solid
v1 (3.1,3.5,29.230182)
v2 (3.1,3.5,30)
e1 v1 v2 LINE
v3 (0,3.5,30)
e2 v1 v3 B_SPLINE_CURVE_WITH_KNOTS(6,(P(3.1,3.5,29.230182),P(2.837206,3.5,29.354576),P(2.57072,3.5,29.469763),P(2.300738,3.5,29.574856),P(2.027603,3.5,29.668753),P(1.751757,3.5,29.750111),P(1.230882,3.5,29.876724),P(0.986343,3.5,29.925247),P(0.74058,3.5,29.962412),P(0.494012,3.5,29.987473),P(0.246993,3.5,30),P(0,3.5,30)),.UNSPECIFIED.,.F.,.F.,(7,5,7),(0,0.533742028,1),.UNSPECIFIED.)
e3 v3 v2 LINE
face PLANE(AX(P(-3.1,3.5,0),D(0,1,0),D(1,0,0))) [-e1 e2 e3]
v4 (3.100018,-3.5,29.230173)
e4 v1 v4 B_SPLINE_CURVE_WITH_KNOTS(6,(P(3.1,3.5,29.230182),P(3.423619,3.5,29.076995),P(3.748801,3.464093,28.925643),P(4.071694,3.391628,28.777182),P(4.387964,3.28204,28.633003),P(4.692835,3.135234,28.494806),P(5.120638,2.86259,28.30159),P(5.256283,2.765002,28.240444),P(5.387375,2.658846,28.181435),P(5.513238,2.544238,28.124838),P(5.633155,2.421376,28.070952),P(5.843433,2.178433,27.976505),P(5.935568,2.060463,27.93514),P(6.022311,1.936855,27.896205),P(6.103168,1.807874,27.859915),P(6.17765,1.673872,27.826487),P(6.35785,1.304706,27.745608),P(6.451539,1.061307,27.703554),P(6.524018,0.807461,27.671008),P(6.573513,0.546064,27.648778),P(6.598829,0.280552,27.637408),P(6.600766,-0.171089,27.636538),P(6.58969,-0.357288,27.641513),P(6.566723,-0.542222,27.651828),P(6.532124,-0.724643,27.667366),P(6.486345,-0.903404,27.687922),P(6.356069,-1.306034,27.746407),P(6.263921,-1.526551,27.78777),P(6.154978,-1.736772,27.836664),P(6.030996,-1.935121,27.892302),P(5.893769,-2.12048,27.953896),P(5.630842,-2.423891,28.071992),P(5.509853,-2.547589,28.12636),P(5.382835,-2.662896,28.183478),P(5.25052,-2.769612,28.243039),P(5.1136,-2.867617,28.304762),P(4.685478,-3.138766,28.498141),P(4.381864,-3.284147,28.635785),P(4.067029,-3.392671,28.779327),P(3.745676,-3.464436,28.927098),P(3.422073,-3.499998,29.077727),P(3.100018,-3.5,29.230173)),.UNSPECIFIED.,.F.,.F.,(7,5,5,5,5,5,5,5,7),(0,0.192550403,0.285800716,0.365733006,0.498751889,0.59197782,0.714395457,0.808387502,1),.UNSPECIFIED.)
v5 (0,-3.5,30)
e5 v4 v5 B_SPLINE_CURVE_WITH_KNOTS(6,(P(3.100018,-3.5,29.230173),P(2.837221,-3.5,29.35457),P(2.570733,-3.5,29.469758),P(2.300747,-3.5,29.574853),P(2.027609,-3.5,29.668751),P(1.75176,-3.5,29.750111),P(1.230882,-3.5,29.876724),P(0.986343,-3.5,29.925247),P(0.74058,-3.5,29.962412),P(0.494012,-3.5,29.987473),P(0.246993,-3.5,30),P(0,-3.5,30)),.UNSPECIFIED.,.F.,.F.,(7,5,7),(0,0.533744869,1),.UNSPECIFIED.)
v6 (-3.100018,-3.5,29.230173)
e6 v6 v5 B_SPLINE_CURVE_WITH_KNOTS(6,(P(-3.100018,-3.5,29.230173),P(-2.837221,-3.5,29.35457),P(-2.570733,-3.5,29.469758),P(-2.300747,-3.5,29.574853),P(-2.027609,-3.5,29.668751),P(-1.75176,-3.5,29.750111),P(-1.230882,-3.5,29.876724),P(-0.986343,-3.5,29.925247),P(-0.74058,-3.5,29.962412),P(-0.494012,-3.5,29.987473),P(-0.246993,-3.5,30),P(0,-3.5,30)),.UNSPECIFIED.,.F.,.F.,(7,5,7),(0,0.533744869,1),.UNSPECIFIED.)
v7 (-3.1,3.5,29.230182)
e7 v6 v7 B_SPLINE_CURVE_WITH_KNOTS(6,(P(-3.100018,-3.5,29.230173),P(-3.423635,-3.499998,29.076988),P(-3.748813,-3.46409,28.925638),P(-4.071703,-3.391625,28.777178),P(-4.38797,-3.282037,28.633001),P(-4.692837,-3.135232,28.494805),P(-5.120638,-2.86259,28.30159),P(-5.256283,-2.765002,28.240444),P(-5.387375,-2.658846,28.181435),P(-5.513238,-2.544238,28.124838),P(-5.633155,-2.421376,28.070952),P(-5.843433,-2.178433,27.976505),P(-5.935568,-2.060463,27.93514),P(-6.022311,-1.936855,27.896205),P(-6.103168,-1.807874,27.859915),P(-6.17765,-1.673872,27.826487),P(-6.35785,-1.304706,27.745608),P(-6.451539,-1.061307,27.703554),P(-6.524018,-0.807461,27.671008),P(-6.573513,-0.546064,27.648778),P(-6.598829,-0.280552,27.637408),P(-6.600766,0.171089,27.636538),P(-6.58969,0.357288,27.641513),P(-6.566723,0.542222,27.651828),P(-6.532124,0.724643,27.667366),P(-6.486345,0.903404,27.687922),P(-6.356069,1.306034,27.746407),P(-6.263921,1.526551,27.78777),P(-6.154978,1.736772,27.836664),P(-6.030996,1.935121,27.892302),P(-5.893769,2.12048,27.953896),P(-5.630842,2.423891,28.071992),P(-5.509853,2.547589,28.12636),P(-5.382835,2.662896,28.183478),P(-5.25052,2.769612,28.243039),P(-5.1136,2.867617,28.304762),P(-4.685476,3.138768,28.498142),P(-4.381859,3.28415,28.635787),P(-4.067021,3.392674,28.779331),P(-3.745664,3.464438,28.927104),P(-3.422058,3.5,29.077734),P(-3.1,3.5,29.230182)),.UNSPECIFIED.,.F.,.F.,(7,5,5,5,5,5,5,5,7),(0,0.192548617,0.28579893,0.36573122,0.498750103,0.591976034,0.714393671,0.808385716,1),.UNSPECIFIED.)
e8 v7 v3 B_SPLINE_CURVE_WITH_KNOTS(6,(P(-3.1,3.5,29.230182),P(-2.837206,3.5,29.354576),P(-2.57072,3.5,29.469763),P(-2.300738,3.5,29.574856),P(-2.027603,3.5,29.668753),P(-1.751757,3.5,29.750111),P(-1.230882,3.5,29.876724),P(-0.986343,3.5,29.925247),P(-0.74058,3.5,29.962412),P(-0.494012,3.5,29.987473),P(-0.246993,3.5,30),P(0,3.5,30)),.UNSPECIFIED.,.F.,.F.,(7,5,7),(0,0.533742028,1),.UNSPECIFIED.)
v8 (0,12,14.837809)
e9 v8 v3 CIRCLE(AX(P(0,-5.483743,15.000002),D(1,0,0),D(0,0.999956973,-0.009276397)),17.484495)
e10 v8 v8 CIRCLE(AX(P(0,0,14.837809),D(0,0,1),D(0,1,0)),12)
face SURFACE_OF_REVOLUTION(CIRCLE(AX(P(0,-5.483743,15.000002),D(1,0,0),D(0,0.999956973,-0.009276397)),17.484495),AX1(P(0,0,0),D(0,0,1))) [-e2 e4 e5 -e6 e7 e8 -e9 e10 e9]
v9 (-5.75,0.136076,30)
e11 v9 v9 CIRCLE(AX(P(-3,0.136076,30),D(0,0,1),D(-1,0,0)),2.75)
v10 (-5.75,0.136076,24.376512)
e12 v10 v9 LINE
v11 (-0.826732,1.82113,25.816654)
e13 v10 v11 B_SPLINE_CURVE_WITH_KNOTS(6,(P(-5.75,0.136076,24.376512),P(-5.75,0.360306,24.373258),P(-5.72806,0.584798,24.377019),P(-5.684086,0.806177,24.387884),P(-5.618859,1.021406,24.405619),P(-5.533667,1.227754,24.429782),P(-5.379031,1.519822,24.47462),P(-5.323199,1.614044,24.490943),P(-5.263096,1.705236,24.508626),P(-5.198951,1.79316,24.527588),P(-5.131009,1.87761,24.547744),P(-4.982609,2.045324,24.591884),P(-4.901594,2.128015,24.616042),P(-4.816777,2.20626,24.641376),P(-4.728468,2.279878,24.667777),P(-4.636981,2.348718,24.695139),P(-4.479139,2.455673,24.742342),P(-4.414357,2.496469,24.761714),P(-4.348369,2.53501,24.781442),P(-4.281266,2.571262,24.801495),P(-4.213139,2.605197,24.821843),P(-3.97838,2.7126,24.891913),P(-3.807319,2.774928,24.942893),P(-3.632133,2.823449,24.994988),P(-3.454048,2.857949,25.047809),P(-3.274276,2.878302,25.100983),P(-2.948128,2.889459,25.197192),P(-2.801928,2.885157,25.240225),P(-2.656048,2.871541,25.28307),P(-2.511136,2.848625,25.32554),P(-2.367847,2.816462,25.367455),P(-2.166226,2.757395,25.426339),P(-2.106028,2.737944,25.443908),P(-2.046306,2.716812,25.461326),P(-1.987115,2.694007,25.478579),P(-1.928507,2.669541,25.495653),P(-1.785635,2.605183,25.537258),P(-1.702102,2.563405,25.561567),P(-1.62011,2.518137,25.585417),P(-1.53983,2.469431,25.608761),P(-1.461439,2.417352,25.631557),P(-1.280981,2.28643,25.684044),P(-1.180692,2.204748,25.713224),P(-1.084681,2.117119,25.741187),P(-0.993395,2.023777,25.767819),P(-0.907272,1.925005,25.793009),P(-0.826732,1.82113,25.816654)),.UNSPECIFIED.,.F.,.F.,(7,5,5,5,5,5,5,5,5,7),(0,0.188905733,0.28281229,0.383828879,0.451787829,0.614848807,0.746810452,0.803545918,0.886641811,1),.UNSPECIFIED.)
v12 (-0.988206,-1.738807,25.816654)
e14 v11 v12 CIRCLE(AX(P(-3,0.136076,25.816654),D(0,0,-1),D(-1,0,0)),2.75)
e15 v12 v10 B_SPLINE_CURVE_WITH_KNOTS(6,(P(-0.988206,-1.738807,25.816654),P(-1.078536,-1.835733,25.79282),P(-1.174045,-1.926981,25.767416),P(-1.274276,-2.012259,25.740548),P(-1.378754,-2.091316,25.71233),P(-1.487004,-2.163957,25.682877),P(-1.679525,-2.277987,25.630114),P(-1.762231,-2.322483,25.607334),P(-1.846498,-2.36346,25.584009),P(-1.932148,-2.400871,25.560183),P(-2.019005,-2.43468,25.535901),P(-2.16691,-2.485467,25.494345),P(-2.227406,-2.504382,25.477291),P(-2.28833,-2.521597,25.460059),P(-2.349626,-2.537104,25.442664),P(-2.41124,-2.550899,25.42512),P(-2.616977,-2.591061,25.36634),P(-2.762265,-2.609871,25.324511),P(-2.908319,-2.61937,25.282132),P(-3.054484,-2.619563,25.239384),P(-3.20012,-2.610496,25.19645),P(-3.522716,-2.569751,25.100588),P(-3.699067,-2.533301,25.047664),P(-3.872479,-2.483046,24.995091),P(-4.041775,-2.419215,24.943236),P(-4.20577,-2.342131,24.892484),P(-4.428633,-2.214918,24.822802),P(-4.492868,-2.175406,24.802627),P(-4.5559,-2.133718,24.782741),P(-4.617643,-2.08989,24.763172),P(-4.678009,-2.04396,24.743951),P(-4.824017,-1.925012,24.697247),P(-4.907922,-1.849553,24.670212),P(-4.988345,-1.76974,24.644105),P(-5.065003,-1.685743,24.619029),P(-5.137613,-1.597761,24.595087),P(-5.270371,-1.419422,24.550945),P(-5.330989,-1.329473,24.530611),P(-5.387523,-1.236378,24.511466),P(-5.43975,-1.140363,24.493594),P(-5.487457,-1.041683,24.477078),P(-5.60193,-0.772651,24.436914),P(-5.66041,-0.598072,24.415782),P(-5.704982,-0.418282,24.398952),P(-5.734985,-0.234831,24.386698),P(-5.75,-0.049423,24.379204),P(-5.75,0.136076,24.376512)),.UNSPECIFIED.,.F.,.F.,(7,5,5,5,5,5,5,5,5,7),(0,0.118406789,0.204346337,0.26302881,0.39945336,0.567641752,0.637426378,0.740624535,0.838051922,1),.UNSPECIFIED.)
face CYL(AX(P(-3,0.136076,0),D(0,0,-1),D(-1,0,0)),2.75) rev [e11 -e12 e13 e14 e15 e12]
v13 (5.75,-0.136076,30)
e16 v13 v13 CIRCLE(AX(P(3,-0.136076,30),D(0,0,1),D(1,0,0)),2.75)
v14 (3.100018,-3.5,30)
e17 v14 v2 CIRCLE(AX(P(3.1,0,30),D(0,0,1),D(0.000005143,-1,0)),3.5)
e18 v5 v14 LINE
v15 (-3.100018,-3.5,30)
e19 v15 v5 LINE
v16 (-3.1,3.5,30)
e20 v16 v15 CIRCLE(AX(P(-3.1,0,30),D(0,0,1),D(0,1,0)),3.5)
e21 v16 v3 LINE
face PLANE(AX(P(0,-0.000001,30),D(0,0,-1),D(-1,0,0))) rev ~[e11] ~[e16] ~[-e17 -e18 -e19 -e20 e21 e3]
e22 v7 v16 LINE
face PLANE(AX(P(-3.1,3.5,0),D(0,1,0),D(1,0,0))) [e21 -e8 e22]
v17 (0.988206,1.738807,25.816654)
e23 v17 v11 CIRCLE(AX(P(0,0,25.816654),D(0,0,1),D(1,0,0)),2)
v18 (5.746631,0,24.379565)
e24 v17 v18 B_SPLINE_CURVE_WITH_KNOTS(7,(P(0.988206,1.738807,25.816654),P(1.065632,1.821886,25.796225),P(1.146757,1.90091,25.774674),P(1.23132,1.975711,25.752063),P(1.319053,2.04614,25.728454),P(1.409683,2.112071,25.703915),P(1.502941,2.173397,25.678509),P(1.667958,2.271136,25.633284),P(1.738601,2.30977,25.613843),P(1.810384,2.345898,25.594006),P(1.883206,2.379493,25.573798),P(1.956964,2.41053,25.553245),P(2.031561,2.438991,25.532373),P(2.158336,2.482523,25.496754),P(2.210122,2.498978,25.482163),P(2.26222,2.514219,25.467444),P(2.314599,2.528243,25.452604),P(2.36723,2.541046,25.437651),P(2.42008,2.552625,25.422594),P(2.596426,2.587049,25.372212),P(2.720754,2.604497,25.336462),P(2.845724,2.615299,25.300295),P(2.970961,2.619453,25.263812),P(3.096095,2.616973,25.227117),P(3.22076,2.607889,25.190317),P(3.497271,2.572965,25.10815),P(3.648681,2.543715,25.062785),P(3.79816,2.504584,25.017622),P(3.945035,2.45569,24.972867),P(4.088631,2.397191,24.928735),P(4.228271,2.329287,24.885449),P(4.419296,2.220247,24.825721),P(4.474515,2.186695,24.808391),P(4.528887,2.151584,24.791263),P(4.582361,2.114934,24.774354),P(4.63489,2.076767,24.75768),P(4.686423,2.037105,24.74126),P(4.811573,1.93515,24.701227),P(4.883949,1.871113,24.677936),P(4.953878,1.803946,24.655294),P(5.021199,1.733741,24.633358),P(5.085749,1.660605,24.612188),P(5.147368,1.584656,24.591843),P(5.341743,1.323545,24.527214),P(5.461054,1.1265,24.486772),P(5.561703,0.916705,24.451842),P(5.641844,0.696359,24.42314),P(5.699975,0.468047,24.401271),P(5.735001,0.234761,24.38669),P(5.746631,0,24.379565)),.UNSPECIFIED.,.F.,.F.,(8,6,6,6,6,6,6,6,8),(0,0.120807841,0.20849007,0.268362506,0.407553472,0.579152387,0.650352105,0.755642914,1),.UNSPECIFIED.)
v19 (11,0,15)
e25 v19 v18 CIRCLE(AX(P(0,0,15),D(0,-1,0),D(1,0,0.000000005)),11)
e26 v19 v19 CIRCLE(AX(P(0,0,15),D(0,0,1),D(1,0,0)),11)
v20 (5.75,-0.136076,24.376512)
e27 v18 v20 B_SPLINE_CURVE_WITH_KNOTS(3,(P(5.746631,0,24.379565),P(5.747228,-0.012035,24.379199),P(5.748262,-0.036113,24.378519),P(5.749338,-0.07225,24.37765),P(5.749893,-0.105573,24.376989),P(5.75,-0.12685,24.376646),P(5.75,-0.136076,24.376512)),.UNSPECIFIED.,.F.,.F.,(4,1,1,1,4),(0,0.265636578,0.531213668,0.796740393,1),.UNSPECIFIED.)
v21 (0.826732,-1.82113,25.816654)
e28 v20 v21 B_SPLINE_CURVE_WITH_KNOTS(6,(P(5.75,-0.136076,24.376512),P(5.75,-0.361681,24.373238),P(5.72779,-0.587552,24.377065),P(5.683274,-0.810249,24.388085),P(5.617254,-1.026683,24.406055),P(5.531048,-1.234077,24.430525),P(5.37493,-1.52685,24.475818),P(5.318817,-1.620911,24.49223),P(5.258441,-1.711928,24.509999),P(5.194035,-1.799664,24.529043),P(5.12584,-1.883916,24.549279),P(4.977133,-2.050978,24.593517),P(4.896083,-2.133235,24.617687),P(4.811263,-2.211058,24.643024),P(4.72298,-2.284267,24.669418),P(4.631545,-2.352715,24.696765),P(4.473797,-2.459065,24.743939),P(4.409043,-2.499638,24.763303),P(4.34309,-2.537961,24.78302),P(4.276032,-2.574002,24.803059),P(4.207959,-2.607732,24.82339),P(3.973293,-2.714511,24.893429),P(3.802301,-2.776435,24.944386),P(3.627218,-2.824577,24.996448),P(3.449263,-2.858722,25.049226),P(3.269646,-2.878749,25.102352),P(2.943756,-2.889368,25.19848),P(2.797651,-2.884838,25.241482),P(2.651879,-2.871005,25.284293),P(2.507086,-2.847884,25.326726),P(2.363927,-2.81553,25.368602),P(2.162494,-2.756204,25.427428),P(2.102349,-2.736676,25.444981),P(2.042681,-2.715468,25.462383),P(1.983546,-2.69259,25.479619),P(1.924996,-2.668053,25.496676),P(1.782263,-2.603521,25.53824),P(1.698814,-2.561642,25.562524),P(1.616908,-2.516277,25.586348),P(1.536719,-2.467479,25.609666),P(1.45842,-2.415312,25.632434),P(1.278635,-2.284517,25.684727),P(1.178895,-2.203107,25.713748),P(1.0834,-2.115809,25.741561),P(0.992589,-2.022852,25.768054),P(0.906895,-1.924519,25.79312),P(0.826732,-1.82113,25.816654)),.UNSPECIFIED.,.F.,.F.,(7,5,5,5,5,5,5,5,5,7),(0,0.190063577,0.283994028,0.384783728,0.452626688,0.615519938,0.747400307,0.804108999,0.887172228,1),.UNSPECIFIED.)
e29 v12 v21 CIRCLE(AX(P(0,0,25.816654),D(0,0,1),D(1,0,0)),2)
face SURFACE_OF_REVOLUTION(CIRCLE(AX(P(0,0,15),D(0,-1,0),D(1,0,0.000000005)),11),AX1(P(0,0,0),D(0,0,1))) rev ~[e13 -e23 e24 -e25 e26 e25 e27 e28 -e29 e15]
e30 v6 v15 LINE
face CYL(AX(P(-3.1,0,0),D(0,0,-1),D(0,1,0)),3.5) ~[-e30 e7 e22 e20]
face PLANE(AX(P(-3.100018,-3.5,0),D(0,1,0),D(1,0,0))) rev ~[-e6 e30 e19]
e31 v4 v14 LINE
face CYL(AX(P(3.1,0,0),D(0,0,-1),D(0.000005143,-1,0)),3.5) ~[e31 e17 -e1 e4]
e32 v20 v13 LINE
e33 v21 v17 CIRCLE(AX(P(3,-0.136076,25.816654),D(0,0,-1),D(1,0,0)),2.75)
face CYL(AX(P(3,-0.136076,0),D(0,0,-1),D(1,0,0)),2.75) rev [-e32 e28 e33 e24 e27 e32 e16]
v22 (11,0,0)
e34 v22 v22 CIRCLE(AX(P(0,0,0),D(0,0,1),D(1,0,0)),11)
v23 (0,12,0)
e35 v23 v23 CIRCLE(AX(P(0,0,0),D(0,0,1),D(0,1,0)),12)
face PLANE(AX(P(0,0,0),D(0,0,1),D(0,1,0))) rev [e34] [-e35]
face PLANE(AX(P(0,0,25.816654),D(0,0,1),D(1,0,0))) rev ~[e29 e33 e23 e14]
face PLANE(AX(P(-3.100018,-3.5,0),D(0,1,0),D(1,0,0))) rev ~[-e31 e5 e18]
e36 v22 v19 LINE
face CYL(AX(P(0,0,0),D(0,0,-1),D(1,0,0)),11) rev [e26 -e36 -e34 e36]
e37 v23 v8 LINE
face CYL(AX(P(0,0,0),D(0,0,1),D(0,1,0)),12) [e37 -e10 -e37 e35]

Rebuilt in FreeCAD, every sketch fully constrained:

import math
import FreeCAD as App
import Part
import Sketcher
Q = App.Units.Quantity

doc = App.newDocument("Part")
body = doc.addObject("PartDesign::Body", "Body")

sketch1 = body.newObject("Sketcher::SketchObject", "Sketch")
sketch1.AttachmentSupport = (doc.getObject("XY_Plane"), [""])
sketch1.MapMode = "FlatFace"
sketch1.addGeometry(Part.Circle(App.Vector(3, -0.1, 0), App.Vector(0, 0, 1), 2.8), False)
sketch1.addConstraint(Sketcher.Constraint("Diameter", 0, Q("5.5 mm")))
sketch1.addConstraint(Sketcher.Constraint("DistanceX", -1, 1, 0, 3, Q("3 mm")))
sketch1.addConstraint(Sketcher.Constraint("DistanceY", 0, 3, -1, 1, Q("0.136076 mm")))
pad1 = body.newObject("PartDesign::Pad", "Pad")
pad1.Profile = sketch1
pad1.Length = 30
body2 = doc.addObject("PartDesign::Body", "Body001")
body2.AllowCompound = True
doc.recompute()

body2.BaseFeature = body
doc.recompute()

body.Placement = App.Placement(App.Vector(0, 0, 0), App.Rotation(App.Vector(0, 0, 1), 180))
boolean = body2.newObject("PartDesign::Boolean", "Boolean")
boolean.Type = "Fuse"
boolean.addObjects([body])
body3 = doc.addObject("PartDesign::Body", "Body002")

sketch2 = body3.newObject("Sketcher::SketchObject", "Sketch001")
sketch2.AttachmentSupport = (doc.getObject("XZ_Plane002"), [""])
sketch2.MapMode = "FlatFace"
sketch2.addGeometry(Part.LineSegment(App.Vector(0, 15, 0), App.Vector(11, 15, 0)), False)
sketch2.addGeometry(Part.ArcOfCircle(Part.Circle(App.Vector(0, 15, 0), App.Vector(0, 0, 1), 11), math.radians(0), math.radians(80)), False)
sketch2.addGeometry(Part.LineSegment(App.Vector(2, 25.8, 0), App.Vector(0, 25.8, 0)), False)
sketch2.addGeometry(Part.LineSegment(App.Vector(0, 25.8, 0), App.Vector(0, 15, 0)), False)
sketch2.addConstraint(Sketcher.Constraint("Coincident", 0, 2, 1, 1))
sketch2.addConstraint(Sketcher.Constraint("Coincident", 1, 2, 2, 1))
sketch2.addConstraint(Sketcher.Constraint("Coincident", 2, 2, 3, 1))
sketch2.addConstraint(Sketcher.Constraint("Coincident", 3, 2, 0, 1))
sketch2.addConstraint(Sketcher.Constraint("Horizontal", 0))
sketch2.addConstraint(Sketcher.Constraint("Horizontal", 2))
sketch2.addConstraint(Sketcher.Constraint("Vertical", 3))
sketch2.addConstraint(Sketcher.Constraint("Coincident", 3, 2, 1, 3))
sketch2.addConstraint(Sketcher.Constraint("PointOnObject", 1, 3, -2))
sketch2.addConstraint(Sketcher.Constraint("Radius", 1, Q("11 mm")))
sketch2.addConstraint(Sketcher.Constraint("DistanceX", 2, 2, 2, 1, Q("2 mm")))
sketch2.addConstraint(Sketcher.Constraint("DistanceY", -1, 1, 1, 3, Q("15 mm")))
revolution = body3.newObject("PartDesign::Revolution", "Revolution")
revolution.Profile = sketch2
revolution.ReferenceAxis = (sketch2, ["V_Axis"])
revolution.Angle = 360
body4 = doc.addObject("PartDesign::Body", "Body003")

sketch3 = body4.newObject("Sketcher::SketchObject", "Sketch002")
sketch3.AttachmentSupport = (doc.getObject("XY_Plane003"), [""])
sketch3.MapMode = "FlatFace"
sketch3.addGeometry(Part.Circle(App.Vector(0, 0, 0), App.Vector(0, 0, 1), 11), False)
sketch3.addConstraint(Sketcher.Constraint("Coincident", 0, 3, -1, 1))
sketch3.addConstraint(Sketcher.Constraint("Diameter", 0, Q("22 mm")))
pad2 = body4.newObject("PartDesign::Pad", "Pad001")
pad2.Profile = sketch3
pad2.Length = 15
doc.recompute()

boolean2 = body4.newObject("PartDesign::Boolean", "Boolean001")
boolean2.Type = "Fuse"
boolean2.addObjects([body3])
body5 = doc.addObject("PartDesign::Body", "Body004")

sketch4 = body5.newObject("Sketcher::SketchObject", "Sketch003")
sketch4.AttachmentSupport = (doc.getObject("YZ_Plane004"), [""])
sketch4.MapMode = "FlatFace"
sketch4.addGeometry(Part.LineSegment(App.Vector(0, 0, 0), App.Vector(12, 0, 0)), False)
sketch4.addGeometry(Part.LineSegment(App.Vector(12, 0, 0), App.Vector(12, 14.8, 0)), False)
sketch4.addGeometry(Part.ArcOfCircle(Part.Circle(App.Vector(-5.5, 15, 0), App.Vector(0, 0, 1), 17.5), math.radians(-1), math.radians(59)), False)
sketch4.addGeometry(Part.LineSegment(App.Vector(3.5, 30, 0), App.Vector(0, 30, 0)), False)
sketch4.addGeometry(Part.LineSegment(App.Vector(0, 30, 0), App.Vector(0, 0, 0)), False)
sketch4.addConstraint(Sketcher.Constraint("Coincident", 0, 2, 1, 1))
sketch4.addConstraint(Sketcher.Constraint("Coincident", 1, 2, 2, 1))
sketch4.addConstraint(Sketcher.Constraint("Coincident", 2, 2, 3, 1))
sketch4.addConstraint(Sketcher.Constraint("Coincident", 3, 2, 4, 1))
sketch4.addConstraint(Sketcher.Constraint("Coincident", 4, 2, 0, 1))
sketch4.addConstraint(Sketcher.Constraint("Horizontal", 0))
sketch4.addConstraint(Sketcher.Constraint("Vertical", 1))
sketch4.addConstraint(Sketcher.Constraint("Horizontal", 3))
sketch4.addConstraint(Sketcher.Constraint("Vertical", 4))
sketch4.addConstraint(Sketcher.Constraint("Coincident", 4, 2, -1, 1))
sketch4.addConstraint(Sketcher.Constraint("DistanceX", 0, 1, 0, 2, Q("12 mm")))
sketch4.addConstraint(Sketcher.Constraint("DistanceY", 4, 2, 4, 1, Q("30 mm")))
sketch4.addConstraint(Sketcher.Constraint("DistanceX", 3, 2, 3, 1, Q("3.5 mm")))
sketch4.addConstraint(Sketcher.Constraint("Radius", 2, Q("17.484495 mm")))
sketch4.addConstraint(Sketcher.Constraint("DistanceY", 1, 1, 1, 2, Q("14.837809 mm")))
revolution2 = body5.newObject("PartDesign::Revolution", "Revolution001")
revolution2.Profile = sketch4
revolution2.ReferenceAxis = (sketch4, ["V_Axis"])
revolution2.Angle = 360
body6 = doc.addObject("PartDesign::Body", "Body005")

sketch5 = body6.newObject("Sketcher::SketchObject", "Sketch004")
sketch5.AttachmentSupport = (doc.getObject("XY_Plane005"), [""])
sketch5.MapMode = "FlatFace"
sketch5.addGeometry(Part.LineSegment(App.Vector(3.1, 3.5, 0), App.Vector(-3.1, 3.5, 0)), False)
sketch5.addGeometry(Part.ArcOfCircle(Part.Circle(App.Vector(-3.1, 0, 0), App.Vector(0, 0, 1), 3.5), math.radians(90), math.radians(270)), False)
sketch5.addGeometry(Part.LineSegment(App.Vector(-3.1, -3.5, 0), App.Vector(3.1, -3.5, 0)), False)
sketch5.addGeometry(Part.ArcOfCircle(Part.Circle(App.Vector(3.1, 0, 0), App.Vector(0, 0, 1), 3.5), math.radians(-90), math.radians(90)), False)
sketch5.addConstraint(Sketcher.Constraint("Tangent", 0, 2, 1, 1))
sketch5.addConstraint(Sketcher.Constraint("Coincident", 1, 2, 2, 1))
sketch5.addConstraint(Sketcher.Constraint("Coincident", 2, 2, 3, 1))
sketch5.addConstraint(Sketcher.Constraint("Tangent", 3, 2, 0, 1))
sketch5.addConstraint(Sketcher.Constraint("Horizontal", 0))
sketch5.addConstraint(Sketcher.Constraint("Horizontal", 2))
sketch5.addConstraint(Sketcher.Constraint("Symmetric", 1, 3, 3, 3, -1, 1))
sketch5.addConstraint(Sketcher.Constraint("Radius", 1, Q("3.5 mm")))
sketch5.addConstraint(Sketcher.Constraint("DistanceX", 0, 2, 0, 1, Q("6.2 mm")))
sketch5.addConstraint(Sketcher.Constraint("DistanceX", 2, 1, 2, 2, Q("6.200036 mm")))
sketch5.addConstraint(Sketcher.Constraint("DistanceX", 1, 2, -1, 1, Q("3.100018 mm")))
pad3 = body6.newObject("PartDesign::Pad", "Pad002")
pad3.Profile = sketch5
pad3.Length = 30
doc.recompute()

boolean3 = body6.newObject("PartDesign::Boolean", "Boolean002")
boolean3.Type = "Fuse"
boolean3.addObjects([body5])
doc.recompute()

boolean4 = body6.newObject("PartDesign::Boolean", "Boolean003")
boolean4.Type = "Cut"
boolean4.addObjects([body4])
doc.recompute()

boolean5 = body6.newObject("PartDesign::Boolean", "Boolean004")
boolean5.Type = "Cut"
boolean5.addObjects([body2])

doc.recompute()
